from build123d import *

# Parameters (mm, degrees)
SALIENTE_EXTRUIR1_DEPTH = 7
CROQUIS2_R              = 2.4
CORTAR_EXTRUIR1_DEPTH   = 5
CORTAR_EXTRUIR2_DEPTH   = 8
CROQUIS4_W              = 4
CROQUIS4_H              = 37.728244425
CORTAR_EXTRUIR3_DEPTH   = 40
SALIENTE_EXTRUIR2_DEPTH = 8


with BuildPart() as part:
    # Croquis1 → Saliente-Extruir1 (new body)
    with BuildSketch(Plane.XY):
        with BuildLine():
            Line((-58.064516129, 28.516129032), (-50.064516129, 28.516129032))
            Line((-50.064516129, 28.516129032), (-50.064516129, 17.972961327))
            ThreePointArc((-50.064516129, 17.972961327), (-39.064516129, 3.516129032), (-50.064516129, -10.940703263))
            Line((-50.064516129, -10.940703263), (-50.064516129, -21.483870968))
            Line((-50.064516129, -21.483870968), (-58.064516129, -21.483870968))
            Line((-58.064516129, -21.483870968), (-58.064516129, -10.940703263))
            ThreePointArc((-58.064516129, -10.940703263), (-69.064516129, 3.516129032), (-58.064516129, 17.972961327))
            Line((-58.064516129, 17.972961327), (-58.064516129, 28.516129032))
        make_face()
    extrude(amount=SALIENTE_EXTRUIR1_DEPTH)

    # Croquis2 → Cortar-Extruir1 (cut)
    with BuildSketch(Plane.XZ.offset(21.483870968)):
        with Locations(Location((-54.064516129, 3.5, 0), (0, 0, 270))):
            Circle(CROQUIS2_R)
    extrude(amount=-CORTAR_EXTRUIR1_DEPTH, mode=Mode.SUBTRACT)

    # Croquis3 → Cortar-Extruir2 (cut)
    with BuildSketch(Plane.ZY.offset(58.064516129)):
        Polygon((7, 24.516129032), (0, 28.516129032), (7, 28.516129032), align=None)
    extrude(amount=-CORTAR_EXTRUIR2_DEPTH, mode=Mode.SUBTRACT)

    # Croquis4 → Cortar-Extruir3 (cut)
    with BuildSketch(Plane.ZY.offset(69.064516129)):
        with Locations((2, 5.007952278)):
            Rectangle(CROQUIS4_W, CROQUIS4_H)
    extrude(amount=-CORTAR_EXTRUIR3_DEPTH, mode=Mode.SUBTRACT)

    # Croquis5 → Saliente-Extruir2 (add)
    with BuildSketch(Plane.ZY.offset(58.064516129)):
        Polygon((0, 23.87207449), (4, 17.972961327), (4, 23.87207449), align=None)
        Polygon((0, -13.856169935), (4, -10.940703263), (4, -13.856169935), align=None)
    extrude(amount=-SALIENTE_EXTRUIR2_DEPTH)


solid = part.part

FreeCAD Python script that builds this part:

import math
import FreeCAD as App
import Part
import Sketcher


def add_polygon(sketch, points):
    """Adds a closed chain of lines whose ends are joined by coincident constraints."""
    first, n = sketch.GeometryCount, len(points)
    for a, b in zip(points, points[1:] + points[:1]):
        sketch.addGeometry(Part.LineSegment(App.Vector(*a, 0), App.Vector(*b, 0)), False)
    for i in range(n):
        sketch.addConstraint(Sketcher.Constraint("Coincident", first + i, 2, first + (i + 1) % n, 1))

doc = App.newDocument("Part")
body = doc.addObject("PartDesign::Body", "Body")

sketch1 = body.newObject("Sketcher::SketchObject", "Sketch")
sketch1.AttachmentSupport = (doc.getObject("XY_Plane"), [""])
sketch1.MapMode = "FlatFace"
sketch1.addGeometry([
    Part.LineSegment(App.Vector(-50.064516, 28.516129, 0), App.Vector(-58.064516, 28.516129, 0)),
    Part.LineSegment(App.Vector(-58.064516, 28.516129, 0), App.Vector(-58.064516, 17.972961, 0)),
    Part.ArcOfCircle(Part.Circle(App.Vector(-54.064516, 3.516129, 0), App.Vector(0, 0, 1), 15), math.radians(105.46601), math.radians(254.53399)),
    Part.LineSegment(App.Vector(-58.064516, -10.940703, 0), App.Vector(-58.064516, -21.483871, 0)),
    Part.LineSegment(App.Vector(-58.064516, -21.483871, 0), App.Vector(-50.064516, -21.483871, 0)),
    Part.LineSegment(App.Vector(-50.064516, -21.483871, 0), App.Vector(-50.064516, -10.940703, 0)),
    Part.ArcOfCircle(Part.Circle(App.Vector(-54.064516, 3.516129, 0), App.Vector(0, 0, 1), 15), math.radians(-74.53399), math.radians(74.53399)),
    Part.LineSegment(App.Vector(-50.064516, 17.972961, 0), App.Vector(-50.064516, 28.516129, 0)),
], False)
sketch1.addConstraint([
    Sketcher.Constraint("Coincident", 0, 2, 1, 1),
    Sketcher.Constraint("Coincident", 1, 2, 2, 1),
    Sketcher.Constraint("Coincident", 2, 2, 3, 1),
    Sketcher.Constraint("Coincident", 3, 2, 4, 1),
    Sketcher.Constraint("Coincident", 4, 2, 5, 1),
    Sketcher.Constraint("Coincident", 5, 2, 6, 1),
    Sketcher.Constraint("Coincident", 6, 2, 7, 1),
    Sketcher.Constraint("Coincident", 7, 2, 0, 1),
    Sketcher.Constraint("Horizontal", 0),
    Sketcher.Constraint("Vertical", 1),
    Sketcher.Constraint("Vertical", 3),
    Sketcher.Constraint("Horizontal", 4),
    Sketcher.Constraint("Vertical", 5),
    Sketcher.Constraint("Vertical", 7),
    Sketcher.Constraint("Coincident", 6, 3, 2, 3),
    Sketcher.Constraint("Equal", 2, 6),
    Sketcher.Constraint("Horizontal", 2, 2, 5, 2),
    Sketcher.Constraint("Horizontal", 1, 2, 6, 2),
    Sketcher.Constraint("Vertical", 1, 2, 2, 2),
    Sketcher.Constraint("Equal", 1, 3),
    Sketcher.Constraint("Radius", 2, 15.0),
    Sketcher.Constraint("DistanceX", 0, 2, 0, 1, 8.0),
    Sketcher.Constraint("DistanceY", 2, 3, 0, 2, 25.0),
    Sketcher.Constraint("DistanceY", -1, 1, 2, 3, 3.516129),
    Sketcher.Constraint("DistanceX", 2, 3, -1, 1, 54.064516),
])
pad1 = body.newObject("PartDesign::Pad", "Pad")
pad1.Profile = sketch1
pad1.Length = 7

sketch2 = body.newObject("Sketcher::SketchObject", "Sketch001")
sketch2.AttachmentSupport = (doc.getObject("XZ_Plane"), [""])
sketch2.MapMode = "FlatFace"
sketch2.AttachmentOffset = App.Placement(App.Vector(0, 0, 21.483871), App.Rotation())
sketch2.addGeometry(Part.Circle(App.Vector(-54.064516, 3.5, 0), App.Vector(0, 0, 1), 2.4), False)
sketch2.addConstraint([
    Sketcher.Constraint("Diameter", 0, 4.8),
    Sketcher.Constraint("DistanceY", -1, 1, 0, 3, 3.5),
    Sketcher.Constraint("DistanceX", 0, 3, -1, 1, 54.064516),
])
pocket1 = body.newObject("PartDesign::Pocket", "Pocket")
pocket1.Profile = sketch2
pocket1.Length = 5

sketch3 = body.newObject("Sketcher::SketchObject", "Sketch002")
sketch3.AttachmentSupport = (doc.getObject("YZ_Plane"), [""])
sketch3.MapMode = "FlatFace"
sketch3.AttachmentOffset = App.Placement(App.Vector(0, 0, -58.064516), App.Rotation())
add_polygon(sketch3, [(28.516129, 0), (24.516129, 7), (28.516129, 7)])
sketch3.addConstraint([
    Sketcher.Constraint("Horizontal", 1),
    Sketcher.Constraint("Vertical", 2),
    Sketcher.Constraint("PointOnObject", 2, 2, -1),
    Sketcher.Constraint("DistanceX", 1, 1, 1, 2, 4.0),
    Sketcher.Constraint("DistanceY", 2, 2, 2, 1, 7.0),
    Sketcher.Constraint("DistanceX", -1, 1, 0, 2, 24.516129),
])
pocket2 = body.newObject("PartDesign::Pocket", "Pocket001")
pocket2.Profile = sketch3
pocket2.Length = 8
pocket2.Reversed = True

sketch4 = body.newObject("Sketcher::SketchObject", "Sketch003")
sketch4.AttachmentSupport = (doc.getObject("YZ_Plane"), [""])
sketch4.MapMode = "FlatFace"
sketch4.AttachmentOffset = App.Placement(App.Vector(0, 0, -69.064516), App.Rotation())
add_polygon(sketch4, [(23.872074, 0), (-13.85617, 0), (-13.85617, 4), (23.872074, 4)])
sketch4.addConstraint([
    Sketcher.Constraint("Horizontal", 0),
    Sketcher.Constraint("Vertical", 1),
    Sketcher.Constraint("Horizontal", 2),
    Sketcher.Constraint("Vertical", 3),
    Sketcher.Constraint("PointOnObject", 0, 2, -1),
    Sketcher.Constraint("DistanceY", 1, 1, 1, 2, 4.0),
    Sketcher.Constraint("DistanceX", 0, 2, 0, 1, 37.728244),
    Sketcher.Constraint("DistanceX", 0, 2, -1, 1, 13.85617),
])
pocket3 = body.newObject("PartDesign::Pocket", "Pocket002")
pocket3.Profile = sketch4
pocket3.Length = 40
pocket3.Reversed = True

sketch5 = body.newObject("Sketcher::SketchObject", "Sketch004")
sketch5.AttachmentSupport = (doc.getObject("YZ_Plane"), [""])
sketch5.MapMode = "FlatFace"
sketch5.AttachmentOffset = App.Placement(App.Vector(0, 0, -58.064516), App.Rotation())
add_polygon(sketch5, [(23.872074, 0), (17.972961, 4), (23.872074, 4)])
add_polygon(sketch5, [(-10.940703, 4), (-13.85617, 0), (-13.85617, 4)])
sketch5.addConstraint([
    Sketcher.Constraint("Horizontal", 1),
    Sketcher.Constraint("Vertical", 2),
    Sketcher.Constraint("Vertical", 4),
    Sketcher.Constraint("Horizontal", 5),
    Sketcher.Constraint("PointOnObject", 2, 2, -1),
    Sketcher.Constraint("PointOnObject", 3, 2, -1),
    Sketcher.Constraint("Horizontal", 1, 2, 4, 2),
    Sketcher.Constraint("DistanceY", 2, 2, 2, 1, 4.0),
    Sketcher.Constraint("Distance", 0, 7.127379),
    Sketcher.Constraint("DistanceX", 5, 1, 5, 2, 2.915467),
    Sketcher.Constraint("DistanceX", -1, 1, 0, 2, 17.972961),
    Sketcher.Constraint("DistanceX", 3, 2, -1, 1, 13.85617),
])
pad2 = body.newObject("PartDesign::Pad", "Pad001")
pad2.Profile = sketch5
pad2.Length = 8

doc.recompute()
